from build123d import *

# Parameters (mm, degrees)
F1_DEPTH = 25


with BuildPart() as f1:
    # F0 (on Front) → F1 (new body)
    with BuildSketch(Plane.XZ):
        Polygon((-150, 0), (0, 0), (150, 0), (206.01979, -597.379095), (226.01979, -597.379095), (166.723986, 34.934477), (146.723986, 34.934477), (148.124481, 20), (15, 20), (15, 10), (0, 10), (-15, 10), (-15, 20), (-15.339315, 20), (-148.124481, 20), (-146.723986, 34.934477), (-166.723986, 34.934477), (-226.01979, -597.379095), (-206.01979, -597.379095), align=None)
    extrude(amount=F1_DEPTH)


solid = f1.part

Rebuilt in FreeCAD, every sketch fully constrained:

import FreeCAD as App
import Part
import Sketcher
Q = App.Units.Quantity


def add_polygon(sketch, points):
    """Adds a closed chain of lines whose ends are joined by coincident constraints."""
    first, n = sketch.GeometryCount, len(points)
    for a, b in zip(points, points[1:] + points[:1]):
        sketch.addGeometry(Part.LineSegment(App.Vector(*a, 0), App.Vector(*b, 0)), False)
    for i in range(n):
        sketch.addConstraint(Sketcher.Constraint("Coincident", first + i, 2, first + (i + 1) % n, 1))

doc = App.newDocument("Part")
params = doc.addObject("Spreadsheet::Sheet", "Params")
for row, (alias, value) in enumerate([
    ("sketch1_width", "300 mm"),
    ("sketch1_width2", "20 mm"),
    ("sketch1_width3", "30 mm"),
    ("sketch1_height", "10 mm"),
    ("sketch1_length", "600 mm"),
    ("pad1_length", "25 mm"),
], start=1):
    params.set(f"A{row}", alias)
    params.set(f"B{row}", "=" + value)
    params.setAlias(f"B{row}", alias)

body = doc.addObject("PartDesign::Body", "Body")

# Sketch on XZ plane
sketch1 = doc.addObject("Sketcher::SketchObject", "Sketch")
body.addObject(sketch1)
sketch1.AttachmentSupport = (doc.XZ_Plane, [""])
sketch1.MapMode = "FlatFace"
add_polygon(sketch1, [(-150, 0), (150, 0), (206.01979, -597.379095), (226.01979, -597.379095), (166.723986, 34.934477), (146.723986, 34.934477), (148.124481, 20), (15, 20), (15, 10), (-15, 10), (-15, 20), (-148.124481, 20), (-146.723986, 34.934477), (-166.723986, 34.934477), (-226.01979, -597.379095), (-206.01979, -597.379095)])  # lines 0-15
sketch1.addConstraint([
    Sketcher.Constraint("Horizontal", 0),
    Sketcher.Constraint("Horizontal", 2),
    Sketcher.Constraint("Horizontal", 4),
    Sketcher.Constraint("Horizontal", 6),
    Sketcher.Constraint("Vertical", 7),
    Sketcher.Constraint("Horizontal", 8),
    Sketcher.Constraint("Vertical", 9),
    Sketcher.Constraint("Horizontal", 10),
    Sketcher.Constraint("Horizontal", 12),
    Sketcher.Constraint("Horizontal", 14),
    Sketcher.Constraint("Symmetric", 0, 2, 15, 2, -1, 1),
    Sketcher.Constraint("Symmetric", 6, 2, 9, 2, -2),
    Sketcher.Constraint("Symmetric", 4, 2, 11, 2, -2),
    Sketcher.Constraint("Symmetric", 2, 2, 13, 2, -2),
    Sketcher.Constraint("Parallel", 1, 3),
    Sketcher.Constraint("Parallel", 3, 5),
    Sketcher.Constraint("Parallel", 11, 13),
    Sketcher.Constraint("Parallel", 13, 15),
    Sketcher.Constraint("Equal", 2, 4),
    Sketcher.Constraint("Equal", 6, 10),
    Sketcher.Constraint("DistanceX", 0, 1, 0, 2, Q("300 mm")),
    Sketcher.Constraint("DistanceX", 2, 1, 2, 2, Q("20 mm")),
    Sketcher.Constraint("DistanceX", 8, 2, 8, 1, Q("30 mm")),
    Sketcher.Constraint("DistanceY", 7, 2, 7, 1, Q("10 mm")),
    Sketcher.Constraint("Distance", 1, Q("600 mm")),
    Sketcher.Constraint("Distance", 5, Q("15 mm")),
    Sketcher.Constraint("DistanceY", -1, 1, 5, 2, Q("20 mm")),
    Sketcher.Constraint("DistanceX", 6, 2, 6, 1, Q("133.124481 mm")),
])
sketch1.setExpression("Constraints[36]", "Params.sketch1_width")
sketch1.setExpression("Constraints[37]", "Params.sketch1_width2")
sketch1.setExpression("Constraints[38]", "Params.sketch1_width3")
sketch1.setExpression("Constraints[39]", "Params.sketch1_height")
sketch1.setExpression("Constraints[40]", "Params.sketch1_length")
pad1 = doc.addObject("PartDesign::Pad", "Pad")
body.addObject(pad1)
pad1.Profile = sketch1
pad1.setExpression("Length", "Params.pad1_length")

doc.recompute()
